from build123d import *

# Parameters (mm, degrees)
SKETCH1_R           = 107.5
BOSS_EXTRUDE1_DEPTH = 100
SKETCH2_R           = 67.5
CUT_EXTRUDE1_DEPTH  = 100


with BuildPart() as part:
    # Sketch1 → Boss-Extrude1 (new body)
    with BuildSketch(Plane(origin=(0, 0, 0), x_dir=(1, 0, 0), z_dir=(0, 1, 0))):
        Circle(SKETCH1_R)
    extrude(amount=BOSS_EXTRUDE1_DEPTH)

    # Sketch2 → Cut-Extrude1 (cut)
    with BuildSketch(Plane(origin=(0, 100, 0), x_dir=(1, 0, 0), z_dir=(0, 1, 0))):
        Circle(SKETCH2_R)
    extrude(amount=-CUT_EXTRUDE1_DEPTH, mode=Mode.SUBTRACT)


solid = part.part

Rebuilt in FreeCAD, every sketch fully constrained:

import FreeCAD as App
import Part
import Sketcher
from FreeCAD import Vector

doc = App.newDocument("Part")
body = doc.addObject("PartDesign::Body", "Body")

sketch1 = body.newObject("Sketcher::SketchObject", "Sketch")
sketch1.AttachmentSupport = (doc.getObject("XZ_Plane"), [""])
sketch1.MapMode = "FlatFace"
sketch1.addGeometry(Part.Circle(Vector(0, 0, 0), Vector(0, 0, 1), 108), False)
sketch1.addConstraint([
    Sketcher.Constraint("Coincident", 0, 3, -1, 1),
    Sketcher.Constraint("Diameter", 0, 215.0),
])
pad1 = body.newObject("PartDesign::Pad", "Pad")
pad1.Profile = sketch1
pad1.Length = 100
pad1.Reversed = True

sketch2 = body.newObject("Sketcher::SketchObject", "Sketch001")
sketch2.AttachmentSupport = (doc.getObject("XZ_Plane"), [""])
sketch2.MapMode = "FlatFace"
sketch2.AttachmentOffset = App.Placement(Vector(0, 0, -100), App.Rotation())
sketch2.addGeometry(Part.Circle(Vector(0, 0, 0), Vector(0, 0, 1), 68), False)
sketch2.addConstraint([
    Sketcher.Constraint("Coincident", 0, 3, -1, 1),
    Sketcher.Constraint("Diameter", 0, 135.0),
])
pocket1 = body.newObject("PartDesign::Pocket", "Pocket")
pocket1.Profile = sketch2
pocket1.Length = 100
pocket1.Reversed = True

doc.recompute()
